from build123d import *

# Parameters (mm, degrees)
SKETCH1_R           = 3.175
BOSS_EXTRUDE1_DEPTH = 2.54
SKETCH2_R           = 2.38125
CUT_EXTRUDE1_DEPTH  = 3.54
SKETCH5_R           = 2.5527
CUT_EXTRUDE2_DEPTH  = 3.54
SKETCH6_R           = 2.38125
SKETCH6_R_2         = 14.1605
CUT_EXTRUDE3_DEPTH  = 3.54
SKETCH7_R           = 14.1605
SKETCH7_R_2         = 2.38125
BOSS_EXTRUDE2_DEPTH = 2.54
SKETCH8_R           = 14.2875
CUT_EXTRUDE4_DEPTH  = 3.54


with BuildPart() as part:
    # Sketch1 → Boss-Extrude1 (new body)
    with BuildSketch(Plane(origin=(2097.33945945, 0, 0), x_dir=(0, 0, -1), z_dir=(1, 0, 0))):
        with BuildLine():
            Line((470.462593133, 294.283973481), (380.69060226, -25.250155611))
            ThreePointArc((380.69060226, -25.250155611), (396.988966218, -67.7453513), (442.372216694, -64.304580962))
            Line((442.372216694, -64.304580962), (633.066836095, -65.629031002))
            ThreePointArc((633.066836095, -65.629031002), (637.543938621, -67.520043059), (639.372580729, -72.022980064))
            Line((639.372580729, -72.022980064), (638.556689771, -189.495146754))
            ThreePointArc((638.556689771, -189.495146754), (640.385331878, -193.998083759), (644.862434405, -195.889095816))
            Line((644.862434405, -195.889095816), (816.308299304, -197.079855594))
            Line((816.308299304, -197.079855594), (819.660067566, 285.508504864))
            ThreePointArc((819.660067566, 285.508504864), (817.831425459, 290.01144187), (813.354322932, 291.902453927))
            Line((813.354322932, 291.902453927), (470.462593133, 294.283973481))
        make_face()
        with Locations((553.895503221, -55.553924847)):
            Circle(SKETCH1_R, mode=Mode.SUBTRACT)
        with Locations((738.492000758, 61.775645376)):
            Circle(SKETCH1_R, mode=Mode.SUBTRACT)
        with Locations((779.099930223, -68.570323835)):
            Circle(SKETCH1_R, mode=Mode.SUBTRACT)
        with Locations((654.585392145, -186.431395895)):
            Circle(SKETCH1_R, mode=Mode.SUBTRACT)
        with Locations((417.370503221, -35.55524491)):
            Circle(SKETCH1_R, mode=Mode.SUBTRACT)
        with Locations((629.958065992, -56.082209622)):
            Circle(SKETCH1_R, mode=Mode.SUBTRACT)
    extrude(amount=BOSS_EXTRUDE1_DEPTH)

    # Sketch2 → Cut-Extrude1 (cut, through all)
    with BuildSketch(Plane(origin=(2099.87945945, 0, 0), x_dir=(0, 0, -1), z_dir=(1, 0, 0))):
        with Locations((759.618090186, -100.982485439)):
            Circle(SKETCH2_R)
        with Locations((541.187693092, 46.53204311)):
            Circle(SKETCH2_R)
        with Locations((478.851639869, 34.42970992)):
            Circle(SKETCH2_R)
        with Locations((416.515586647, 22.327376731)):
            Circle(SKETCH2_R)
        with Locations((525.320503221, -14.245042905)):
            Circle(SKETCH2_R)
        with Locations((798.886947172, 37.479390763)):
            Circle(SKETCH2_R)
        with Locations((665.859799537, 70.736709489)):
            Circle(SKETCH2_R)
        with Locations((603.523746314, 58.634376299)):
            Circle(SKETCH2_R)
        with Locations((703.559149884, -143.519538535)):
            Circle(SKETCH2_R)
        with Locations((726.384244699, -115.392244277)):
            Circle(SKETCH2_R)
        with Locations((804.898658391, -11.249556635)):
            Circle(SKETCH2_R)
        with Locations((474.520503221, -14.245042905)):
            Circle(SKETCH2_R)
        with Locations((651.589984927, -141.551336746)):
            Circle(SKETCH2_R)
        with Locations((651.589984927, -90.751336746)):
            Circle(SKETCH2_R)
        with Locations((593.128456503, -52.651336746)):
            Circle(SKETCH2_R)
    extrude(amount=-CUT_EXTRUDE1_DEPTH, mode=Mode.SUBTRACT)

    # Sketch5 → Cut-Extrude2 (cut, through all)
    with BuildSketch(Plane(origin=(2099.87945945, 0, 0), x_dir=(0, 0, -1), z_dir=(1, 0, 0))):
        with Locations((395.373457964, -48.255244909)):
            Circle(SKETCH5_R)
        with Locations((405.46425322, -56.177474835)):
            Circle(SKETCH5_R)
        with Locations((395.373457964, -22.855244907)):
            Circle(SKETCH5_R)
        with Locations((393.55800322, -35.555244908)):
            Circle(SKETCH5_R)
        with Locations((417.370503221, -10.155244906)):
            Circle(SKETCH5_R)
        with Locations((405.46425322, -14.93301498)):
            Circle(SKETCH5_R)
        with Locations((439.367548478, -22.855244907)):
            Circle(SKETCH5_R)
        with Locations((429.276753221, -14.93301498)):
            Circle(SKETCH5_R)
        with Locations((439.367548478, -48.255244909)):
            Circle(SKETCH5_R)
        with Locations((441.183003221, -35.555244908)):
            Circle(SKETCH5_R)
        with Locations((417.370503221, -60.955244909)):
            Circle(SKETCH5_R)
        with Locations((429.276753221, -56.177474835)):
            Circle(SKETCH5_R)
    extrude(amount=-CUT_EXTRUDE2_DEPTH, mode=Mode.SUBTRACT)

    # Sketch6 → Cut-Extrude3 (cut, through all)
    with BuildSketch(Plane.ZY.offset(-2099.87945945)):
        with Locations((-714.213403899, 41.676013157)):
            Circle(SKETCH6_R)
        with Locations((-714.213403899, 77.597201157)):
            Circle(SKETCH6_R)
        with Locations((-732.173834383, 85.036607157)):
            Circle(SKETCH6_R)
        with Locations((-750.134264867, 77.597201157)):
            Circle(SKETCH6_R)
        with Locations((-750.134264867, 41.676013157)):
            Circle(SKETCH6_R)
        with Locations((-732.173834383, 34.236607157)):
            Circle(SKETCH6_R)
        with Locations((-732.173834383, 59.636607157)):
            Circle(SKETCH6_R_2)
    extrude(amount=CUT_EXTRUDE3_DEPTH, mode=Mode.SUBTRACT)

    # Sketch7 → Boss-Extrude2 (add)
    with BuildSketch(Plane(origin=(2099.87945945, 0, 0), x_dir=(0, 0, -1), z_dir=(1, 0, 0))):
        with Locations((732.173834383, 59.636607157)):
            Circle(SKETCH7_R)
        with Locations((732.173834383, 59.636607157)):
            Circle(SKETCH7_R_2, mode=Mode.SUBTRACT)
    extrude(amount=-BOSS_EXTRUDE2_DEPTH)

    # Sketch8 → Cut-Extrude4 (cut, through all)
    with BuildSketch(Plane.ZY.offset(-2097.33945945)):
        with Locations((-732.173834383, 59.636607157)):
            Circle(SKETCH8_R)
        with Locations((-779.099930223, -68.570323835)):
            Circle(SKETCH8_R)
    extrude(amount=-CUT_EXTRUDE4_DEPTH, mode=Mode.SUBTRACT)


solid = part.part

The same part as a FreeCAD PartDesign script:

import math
import FreeCAD as App
import Part
import Sketcher

V = App.Vector
Q = App.Units.Quantity

doc = App.newDocument("Part")
body = doc.addObject("PartDesign::Body", "Body")

# Sketch on YZ plane
sketch1 = body.newObject("Sketcher::SketchObject", "Sketch")
sketch1.AttachmentSupport = (doc.getObject("YZ_Plane"), [""])
sketch1.MapMode = "FlatFace"
sketch1.AttachmentOffset = App.Placement(V(0, 0, 2097.339459), App.Rotation())
sketch1.addGeometry([
    Part.LineSegment(V(294.283973, -470.462593, 0), V(-25.250156, -380.690602, 0)),  # 0
    Part.ArcOfCircle(Part.Circle(V(-35.555245, -417.370503, 0), V(0, 0, 1), 38.1), math.radians(74.307479), math.radians(221.011687)),  # 1
    Part.LineSegment(V(-64.304581, -442.372217, 0), V(-65.629031, -633.066836, 0)),  # 2
    Part.ArcOfCircle(Part.Circle(V(-71.978878, -633.022734, 0), V(0, 0, 1), 6.35), math.radians(-90.397936), math.radians(-0.397936)),  # 3
    Part.LineSegment(V(-72.02298, -639.372581, 0), V(-189.495147, -638.55669, 0)),  # 4
    Part.ArcOfCircle(Part.Circle(V(-189.539249, -644.906537, 0), V(0, 0, 1), 6.35), math.radians(89.602064), math.radians(179.602064)),  # 5
    Part.LineSegment(V(-195.889096, -644.862434, 0), V(-197.079856, -816.308299, 0)),  # 6
    Part.LineSegment(V(-197.079856, -816.308299, 0), V(285.508505, -819.660068, 0)),  # 7
    Part.ArcOfCircle(Part.Circle(V(285.552607, -813.310221, 0), V(0, 0, 1), 6.35), math.radians(-90.397936), math.radians(-0.397936)),  # 8
    Part.LineSegment(V(291.902454, -813.354323, 0), V(294.283973, -470.462593, 0)),  # 9
    Part.Circle(V(-186.431396, -654.585392, 0), V(0, 0, 1), 3.175),  # 10
    Part.Circle(V(-68.570324, -779.09993, 0), V(0, 0, 1), 3.175),  # 11
    Part.Circle(V(-35.555245, -417.370503, 0), V(0, 0, 1), 3.175),  # 12
    Part.Circle(V(-55.553925, -553.895503, 0), V(0, 0, 1), 3.175),  # 13
    Part.Circle(V(-56.08221, -629.958066, 0), V(0, 0, 1), 3.175),  # 14
    Part.Circle(V(61.775645, -738.492001, 0), V(0, 0, 1), 3.175),  # 15
], False)
sketch1.addConstraint([
    Sketcher.Constraint("Tangent", 0, 2, 1, 1),
    Sketcher.Constraint("Coincident", 1, 2, 2, 1),
    Sketcher.Constraint("Tangent", 2, 2, 3, 2),
    Sketcher.Constraint("Tangent", 3, 1, 4, 1),
    Sketcher.Constraint("Tangent", 4, 2, 5, 1),
    Sketcher.Constraint("Tangent", 5, 2, 6, 1),
    Sketcher.Constraint("Coincident", 6, 2, 7, 1),
    Sketcher.Constraint("Tangent", 7, 2, 8, 1),
    Sketcher.Constraint("Tangent", 8, 2, 9, 1),
    Sketcher.Constraint("Coincident", 9, 2, 0, 1),
    Sketcher.Constraint("Coincident", 12, 3, 1, 3),
    Sketcher.Constraint("Equal", 3, 5),
    Sketcher.Constraint("Equal", 5, 8),
    Sketcher.Constraint("Equal", 10, 11),
    Sketcher.Constraint("Equal", 11, 12),
    Sketcher.Constraint("Equal", 12, 13),
    Sketcher.Constraint("Equal", 13, 14),
    Sketcher.Constraint("Equal", 14, 15),
    Sketcher.Constraint("Perpendicular", 2, 4),
    Sketcher.Constraint("Perpendicular", 4, 6),
    Sketcher.Constraint("Perpendicular", 6, 7),
    Sketcher.Constraint("Perpendicular", 7, 9),
    Sketcher.Constraint("Radius", 1, Q("1.5 in")),
    Sketcher.Constraint("Diameter", 10, Q("0.25 in")),
    Sketcher.Constraint("Radius", 3, Q("0.25 in")),
    Sketcher.Constraint("Distance", 7, Q("19 in")),
    Sketcher.Constraint("Distance", 9, Q("13.5 in")),
    Sketcher.Constraint("Distance", 6, Q("6.75 in")),
    Sketcher.Constraint("Distance", 4, Q("4.625 in")),
    Sketcher.Constraint("DistanceY", 13, 3, 1, 3, Q("5.375 in")),
    Sketcher.Constraint("DistanceY", 15, 3, -1, 1, 738.492001),
    Sketcher.Constraint("DistanceY", 6, 2, -1, 1, 816.308299),
    Sketcher.Constraint("DistanceY", 1, 3, 0, 2, 36.679901),
    Sketcher.Constraint("DistanceY", 5, 3, 2, 2, 11.839701),
    Sketcher.Constraint("DistanceX", 5, 2, 10, 3, 9.4577),
    Sketcher.Constraint("DistanceY", 7, 2, 14, 3, 189.702002),
    Sketcher.Constraint("Distance", 2, 190.699219),
    Sketcher.Constraint("DistanceX", 5, 3, -1, 1, 189.539249),
    Sketcher.Constraint("DistanceY", 11, 3, -1, 1, 779.09993),
    Sketcher.Constraint("DistanceX", 14, 3, -1, 1, 56.08221),
    Sketcher.Constraint("DistanceY", 10, 3, 3, 3, 21.562658),
    Sketcher.Constraint("DistanceX", 11, 3, 8, 3, 354.122931),
    Sketcher.Constraint("DistanceX", 13, 3, 1, 3, 19.99868),
    Sketcher.Constraint("DistanceX", 11, 3, 15, 3, 130.345969),
])
pad1 = body.newObject("PartDesign::Pad", "Pad")
pad1.Profile = sketch1
pad1.Length = Q("0.1 in")

# Sketch on YZ plane
sketch2 = body.newObject("Sketcher::SketchObject", "Sketch001")
sketch2.AttachmentSupport = (doc.getObject("YZ_Plane"), [""])
sketch2.MapMode = "FlatFace"
sketch2.AttachmentOffset = App.Placement(V(0, 0, 2099.879459), App.Rotation())
sketch2.addGeometry([
    Part.Circle(V(-100.982485, -759.61809, 0), V(0, 0, 1), 2.38125),  # 0
    Part.Circle(V(46.532043, -541.187693, 0), V(0, 0, 1), 2.38125),  # 1
    Part.Circle(V(34.42971, -478.85164, 0), V(0, 0, 1), 2.38125),  # 2
    Part.Circle(V(22.327377, -416.515587, 0), V(0, 0, 1), 2.38125),  # 3
    Part.Circle(V(-14.245043, -525.320503, 0), V(0, 0, 1), 2.38125),  # 4
    Part.Circle(V(37.479391, -798.886947, 0), V(0, 0, 1), 2.38125),  # 5
    Part.Circle(V(70.736709, -665.8598, 0), V(0, 0, 1), 2.38125),  # 6
    Part.Circle(V(58.634376, -603.523746, 0), V(0, 0, 1), 2.38125),  # 7
    Part.Circle(V(-143.519539, -703.55915, 0), V(0, 0, 1), 2.38125),  # 8
    Part.Circle(V(-115.392244, -726.384245, 0), V(0, 0, 1), 2.38125),  # 9
    Part.Circle(V(-11.249557, -804.898658, 0), V(0, 0, 1), 2.38125),  # 10
    Part.Circle(V(-14.245043, -474.520503, 0), V(0, 0, 1), 2.38125),  # 11
    Part.Circle(V(-141.551337, -651.589985, 0), V(0, 0, 1), 2.38125),  # 12
    Part.Circle(V(-90.751337, -651.589985, 0), V(0, 0, 1), 2.38125),  # 13
    Part.Circle(V(-52.651337, -593.128457, 0), V(0, 0, 1), 2.38125),  # 14
], False)
sketch2.addConstraint([
    Sketcher.Constraint("Equal", 0, 1),
    Sketcher.Constraint("Equal", 1, 2),
    Sketcher.Constraint("Equal", 2, 3),
    Sketcher.Constraint("Equal", 3, 4),
    Sketcher.Constraint("Equal", 4, 5),
    Sketcher.Constraint("Equal", 5, 6),
    Sketcher.Constraint("Equal", 6, 7),
    Sketcher.Constraint("Equal", 7, 8),
    Sketcher.Constraint("Equal", 8, 9),
    Sketcher.Constraint("Equal", 9, 10),
    Sketcher.Constraint("Equal", 10, 11),
    Sketcher.Constraint("Equal", 11, 12),
    Sketcher.Constraint("Equal", 12, 13),
    Sketcher.Constraint("Equal", 13, 14),
    Sketcher.Constraint("Horizontal", 12, 3, 13, 3),
    Sketcher.Constraint("Vertical", 4, 3, 11, 3),
    Sketcher.Constraint("Diameter", 0, Q("0.1875 in")),
    Sketcher.Constraint("DistanceY", 4, 3, 11, 3, Q("2 in")),
    Sketcher.Constraint("DistanceX", 12, 3, 13, 3, Q("2 in")),
    Sketcher.Constraint("DistanceX", 13, 3, 14, 3, Q("1.5 in")),
    Sketcher.Constraint("DistanceY", 6, 3, -1, 1, 665.8598),
    Sketcher.Constraint("DistanceX", 2, 3, 6, 3, 36.307),
    Sketcher.Constraint("DistanceX", 3, 3, 7, 3, 36.307),
    Sketcher.Constraint("DistanceY", 9, 3, 7, 3, 122.860498),
    Sketcher.Constraint("DistanceX", 8, 3, 12, 3, 1.968202),
    Sketcher.Constraint("DistanceY", 0, 3, -1, 1, 759.61809),
    Sketcher.Constraint("DistanceX", -1, 1, 2, 3, 34.42971),
    Sketcher.Constraint("DistanceY", 2, 3, -1, 1, 478.85164),
    Sketcher.Constraint("DistanceX", -1, 1, 5, 3, 37.479391),
    Sketcher.Constraint("DistanceX", 8, 3, -1, 1, 143.519539),
    Sketcher.Constraint("DistanceY", 8, 3, -1, 1, 703.55915),
    Sketcher.Constraint("DistanceY", 10, 3, -1, 1, 804.898658),
    Sketcher.Constraint("DistanceX", 0, 3, 1, 3, 147.514529),
    Sketcher.Constraint("DistanceY", 1, 3, 4, 3, 15.86719),
    Sketcher.Constraint("DistanceX", 4, 3, 3, 3, 36.57242),
    Sketcher.Constraint("DistanceY", 5, 3, 3, 3, 382.371361),
    Sketcher.Constraint("DistanceY", 7, 3, 3, 3, 187.00816),
    Sketcher.Constraint("DistanceX", 9, 3, 0, 3, 14.409759),
    Sketcher.Constraint("DistanceX", 9, 3, 7, 3, 174.026621),
    Sketcher.Constraint("DistanceY", 10, 3, 5, 3, 6.011711),
    Sketcher.Constraint("DistanceX", 0, 3, 10, 3, 89.732929),
    Sketcher.Constraint("DistanceX", 8, 3, 10, 3, 132.269982),
    Sketcher.Constraint("DistanceY", 9, 3, 12, 3, 74.79426),
    Sketcher.Constraint("DistanceY", 12, 3, 4, 3, 126.269482),
    Sketcher.Constraint("DistanceY", 13, 3, 14, 3, 58.461528),
])
pocket1 = body.newObject("PartDesign::Pocket", "Pocket")
pocket1.Profile = sketch2
pocket1.Type = "ThroughAll"

# Sketch on YZ plane
sketch3 = body.newObject("Sketcher::SketchObject", "Sketch002")
sketch3.AttachmentSupport = (doc.getObject("YZ_Plane"), [""])
sketch3.MapMode = "FlatFace"
sketch3.AttachmentOffset = App.Placement(V(0, 0, 2099.879459), App.Rotation())
sketch3.addGeometry([
    Part.Circle(V(-48.255245, -395.373458, 0), V(0, 0, 1), 2.5527),  # 0
    Part.Circle(V(-56.177475, -405.464253, 0), V(0, 0, 1), 2.5527),  # 1
    Part.Circle(V(-22.855245, -395.373458, 0), V(0, 0, 1), 2.5527),  # 2
    Part.Circle(V(-35.555245, -393.558003, 0), V(0, 0, 1), 2.5527),  # 3
    Part.Circle(V(-10.155245, -417.370503, 0), V(0, 0, 1), 2.5527),  # 4
    Part.Circle(V(-14.933015, -405.464253, 0), V(0, 0, 1), 2.5527),  # 5
    Part.Circle(V(-22.855245, -439.367548, 0), V(0, 0, 1), 2.5527),  # 6
    Part.Circle(V(-14.933015, -429.276753, 0), V(0, 0, 1), 2.5527),  # 7
    Part.Circle(V(-48.255245, -439.367548, 0), V(0, 0, 1), 2.5527),  # 8
    Part.Circle(V(-35.555245, -441.183003, 0), V(0, 0, 1), 2.5527),  # 9
    Part.Circle(V(-60.955245, -417.370503, 0), V(0, 0, 1), 2.5527),  # 10
    Part.Circle(V(-56.177475, -429.276753, 0), V(0, 0, 1), 2.5527),  # 11
], False)
sketch3.addConstraint([
    Sketcher.Constraint("Equal", 0, 1),
    Sketcher.Constraint("Equal", 1, 2),
    Sketcher.Constraint("Equal", 2, 3),
    Sketcher.Constraint("Equal", 3, 4),
    Sketcher.Constraint("Equal", 4, 5),
    Sketcher.Constraint("Equal", 5, 6),
    Sketcher.Constraint("Equal", 6, 7),
    Sketcher.Constraint("Equal", 7, 8),
    Sketcher.Constraint("Equal", 8, 9),
    Sketcher.Constraint("Equal", 9, 10),
    Sketcher.Constraint("Equal", 10, 11),
    Sketcher.Constraint("Horizontal", 0, 3, 2, 3),
    Sketcher.Constraint("Horizontal", 1, 3, 5, 3),
    Sketcher.Constraint("Horizontal", 6, 3, 8, 3),
    Sketcher.Constraint("Horizontal", 4, 3, 10, 3),
    Sketcher.Constraint("Horizontal", 7, 3, 11, 3),
    Sketcher.Constraint("Vertical", 2, 3, 6, 3),
    Sketcher.Constraint("Vertical", 5, 3, 7, 3),
    Sketcher.Constraint("Vertical", 0, 3, 8, 3),
    Sketcher.Constraint("Vertical", 3, 3, 9, 3),
    Sketcher.Constraint("Vertical", 1, 3, 11, 3),
    Sketcher.Constraint("Diameter", 0, Q("0.201 in")),
    Sketcher.Constraint("DistanceX", 0, 3, 2, 3, Q("1 in")),
    Sketcher.Constraint("DistanceX", 3, 3, 4, 3, Q("1 in")),
    Sketcher.Constraint("DistanceX", 10, 3, 9, 3, Q("1 in")),
    Sketcher.Constraint("DistanceX", 0, 3, 3, 3, Q("0.5 in")),
    Sketcher.Constraint("DistanceY", 1, 3, 3, 3, Q("0.46875 in")),
    Sketcher.Constraint("DistanceY", 4, 3, 3, 3, Q("0.9375 in")),
    Sketcher.Constraint("DistanceY", 7, 3, 4, 3, Q("0.46875 in")),
    Sketcher.Constraint("DistanceY", 9, 3, 7, 3, Q("0.46875 in")),
    Sketcher.Constraint("DistanceY", 6, 3, -1, 1, 439.367548),
    Sketcher.Constraint("DistanceX", 1, 3, 0, 3, 7.92223),
    Sketcher.Constraint("DistanceX", 2, 3, 5, 3, 7.92223),
    Sketcher.Constraint("DistanceY", 6, 3, 2, 3, 43.994091),
    Sketcher.Constraint("DistanceX", 0, 3, -1, 1, 48.255245),
    Sketcher.Constraint("DistanceY", 1, 3, -1, 1, 405.464253),
])
pocket2 = body.newObject("PartDesign::Pocket", "Pocket001")
pocket2.Profile = sketch3
pocket2.Type = "ThroughAll"

# Sketch on YZ plane
sketch4 = body.newObject("Sketcher::SketchObject", "Sketch003")
sketch4.AttachmentSupport = (doc.getObject("YZ_Plane"), [""])
sketch4.MapMode = "FlatFace"
sketch4.AttachmentOffset = App.Placement(V(0, 0, 2099.879459), App.Rotation())
sketch4.addGeometry([
    Part.Circle(V(41.676013, -714.213404, 0), V(0, 0, 1), 2.38125),  # 0
    Part.Circle(V(77.597201, -714.213404, 0), V(0, 0, 1), 2.38125),  # 1
    Part.Circle(V(85.036607, -732.173834, 0), V(0, 0, 1), 2.38125),  # 2
    Part.Circle(V(77.597201, -750.134265, 0), V(0, 0, 1), 2.38125),  # 3
    Part.Circle(V(41.676013, -750.134265, 0), V(0, 0, 1), 2.38125),  # 4
    Part.Circle(V(34.236607, -732.173834, 0), V(0, 0, 1), 2.38125),  # 5
    Part.Circle(V(59.636607, -732.173834, 0), V(0, 0, 1), 14.1605),  # 6
], False)
sketch4.addConstraint([
    Sketcher.Constraint("Equal", 0, 1),
    Sketcher.Constraint("Equal", 1, 2),
    Sketcher.Constraint("Equal", 2, 3),
    Sketcher.Constraint("Equal", 3, 4),
    Sketcher.Constraint("Equal", 4, 5),
    Sketcher.Constraint("Horizontal", 0, 3, 1, 3),
    Sketcher.Constraint("Horizontal", 3, 3, 4, 3),
    Sketcher.Constraint("Horizontal", 2, 3, 5, 3),
    Sketcher.Constraint("Horizontal", 5, 3, 6, 3),
    Sketcher.Constraint("Vertical", 1, 3, 3, 3),
    Sketcher.Constraint("Vertical", 0, 3, 4, 3),
    Sketcher.Constraint("Diameter", 0, Q("0.1875 in")),
    Sketcher.Constraint("Diameter", 6, Q("1.115 in")),
    Sketcher.Constraint("DistanceX", 5, 3, 2, 3, Q("2 in")),
    Sketcher.Constraint("DistanceX", 5, 3, 6, 3, Q("1 in")),
    Sketcher.Constraint("DistanceX", -1, 1, 1, 3, 77.597201),
    Sketcher.Constraint("DistanceY", 2, 3, 1, 3, 17.96043),
    Sketcher.Constraint("DistanceY", 3, 3, 2, 3, 17.96043),
    Sketcher.Constraint("DistanceX", -1, 1, 0, 3, 41.676013),
    Sketcher.Constraint("DistanceY", 0, 3, -1, 1, 714.213404),
    Sketcher.Constraint("DistanceX", -1, 1, 2, 3, 85.036607),
])
pocket3 = body.newObject("PartDesign::Pocket", "Pocket002")
pocket3.Profile = sketch4
pocket3.Type = "ThroughAll"

# Sketch on YZ plane
sketch5 = body.newObject("Sketcher::SketchObject", "Sketch004")
sketch5.AttachmentSupport = (doc.getObject("YZ_Plane"), [""])
sketch5.MapMode = "FlatFace"
sketch5.AttachmentOffset = App.Placement(V(0, 0, 2099.879459), App.Rotation())
sketch5.addGeometry([
    Part.Circle(V(59.636607, -732.173834, 0), V(0, 0, 1), 14.1605),
    Part.Circle(V(59.636607, -732.173834, 0), V(0, 0, 1), 2.38125),
], False)
sketch5.addConstraint([
    Sketcher.Constraint("Coincident", 1, 3, 0, 3),
    Sketcher.Constraint("Diameter", 0, Q("1.115 in")),
    Sketcher.Constraint("Diameter", 1, Q("0.1875 in")),
    Sketcher.Constraint("DistanceX", -1, 1, 0, 3, 59.636607),
    Sketcher.Constraint("DistanceY", 0, 3, -1, 1, 732.173834),
])
pad2 = body.newObject("PartDesign::Pad", "Pad001")
pad2.Profile = sketch5
pad2.Length = Q("0.1 in")
pad2.Reversed = True

# Sketch on YZ plane
sketch6 = body.newObject("Sketcher::SketchObject", "Sketch005")
sketch6.AttachmentSupport = (doc.getObject("YZ_Plane"), [""])
sketch6.MapMode = "FlatFace"
sketch6.AttachmentOffset = App.Placement(V(0, 0, 2097.339459), App.Rotation())
sketch6.addGeometry([
    Part.Circle(V(59.636607, -732.173834, 0), V(0, 0, 1), 14.2875),
    Part.Circle(V(-68.570324, -779.09993, 0), V(0, 0, 1), 14.2875),
], False)
sketch6.addConstraint([
    Sketcher.Constraint("Equal", 0, 1),
    Sketcher.Constraint("Diameter", 0, Q("1.125 in")),
    Sketcher.Constraint("DistanceY", 1, 3, -1, 1, 779.09993),
    Sketcher.Constraint("DistanceX", 1, 3, 0, 3, 128.206931),
    Sketcher.Constraint("DistanceX", -1, 1, 0, 3, 59.636607),
    Sketcher.Constraint("DistanceY", 0, 3, -1, 1, 732.173834),
])
pocket4 = body.newObject("PartDesign::Pocket", "Pocket003")
pocket4.Profile = sketch6
pocket4.Type = "ThroughAll"
pocket4.Reversed = True

doc.recompute()
